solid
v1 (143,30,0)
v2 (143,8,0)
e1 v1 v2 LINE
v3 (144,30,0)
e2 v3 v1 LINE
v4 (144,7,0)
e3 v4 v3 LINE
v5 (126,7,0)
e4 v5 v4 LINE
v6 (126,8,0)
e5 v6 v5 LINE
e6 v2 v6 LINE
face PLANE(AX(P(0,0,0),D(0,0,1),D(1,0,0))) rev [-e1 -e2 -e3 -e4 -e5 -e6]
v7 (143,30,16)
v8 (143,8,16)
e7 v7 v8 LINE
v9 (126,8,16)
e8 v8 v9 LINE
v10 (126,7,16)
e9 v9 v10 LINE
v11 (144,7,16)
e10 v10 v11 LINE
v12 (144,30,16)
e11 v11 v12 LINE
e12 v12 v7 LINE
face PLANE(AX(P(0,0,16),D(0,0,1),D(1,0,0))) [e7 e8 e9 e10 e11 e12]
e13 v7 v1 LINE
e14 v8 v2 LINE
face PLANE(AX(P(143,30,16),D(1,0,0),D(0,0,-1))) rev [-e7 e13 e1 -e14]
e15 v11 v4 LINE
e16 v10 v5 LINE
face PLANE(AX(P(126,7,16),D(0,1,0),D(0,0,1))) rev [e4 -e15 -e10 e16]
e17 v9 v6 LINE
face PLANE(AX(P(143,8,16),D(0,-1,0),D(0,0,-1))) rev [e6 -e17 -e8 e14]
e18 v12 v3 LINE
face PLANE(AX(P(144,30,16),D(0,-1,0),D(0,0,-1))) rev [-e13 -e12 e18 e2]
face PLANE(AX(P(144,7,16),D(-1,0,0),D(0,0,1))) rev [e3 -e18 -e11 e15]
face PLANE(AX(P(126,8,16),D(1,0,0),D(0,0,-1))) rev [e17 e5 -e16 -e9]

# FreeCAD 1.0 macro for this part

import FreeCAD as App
import Part
import Sketcher
from FreeCAD import Vector

doc = App.newDocument("Part")
body = doc.addObject("PartDesign::Body", "Body")

sketch1 = body.newObject("Sketcher::SketchObject", "Sketch")
sketch1.AttachmentSupport = (doc.getObject("XY_Plane"), [""])
sketch1.MapMode = "FlatFace"
sketch1.addGeometry([
    Part.LineSegment(Vector(126, 7, 0), Vector(144, 7, 0)),
    Part.LineSegment(Vector(144, 7, 0), Vector(144, 30, 0)),
    Part.LineSegment(Vector(144, 30, 0), Vector(143, 30, 0)),
    Part.LineSegment(Vector(143, 30, 0), Vector(143, 8, 0)),
    Part.LineSegment(Vector(143, 8, 0), Vector(126, 8, 0)),
    Part.LineSegment(Vector(126, 8, 0), Vector(126, 7, 0)),
], False)
sketch1.addConstraint([
    Sketcher.Constraint("Coincident", 0, 2, 1, 1),
    Sketcher.Constraint("Coincident", 1, 2, 2, 1),
    Sketcher.Constraint("Coincident", 2, 2, 3, 1),
    Sketcher.Constraint("Coincident", 3, 2, 4, 1),
    Sketcher.Constraint("Coincident", 4, 2, 5, 1),
    Sketcher.Constraint("Coincident", 5, 2, 0, 1),
    Sketcher.Constraint("Horizontal", 0),
    Sketcher.Constraint("Vertical", 1),
    Sketcher.Constraint("Horizontal", 2),
    Sketcher.Constraint("Vertical", 3),
    Sketcher.Constraint("Horizontal", 4),
    Sketcher.Constraint("Vertical", 5),
    Sketcher.Constraint("Equal", 2, 5),
    Sketcher.Constraint("DistanceX", 0, 1, 0, 2, 18.0),
    Sketcher.Constraint("DistanceX", 2, 2, 2, 1, 1.0),
    Sketcher.Constraint("DistanceY", 1, 1, 1, 2, 23.0),
    Sketcher.Constraint("DistanceX", -1, 1, 0, 2, 144.0),
    Sketcher.Constraint("DistanceY", -1, 1, 0, 2, 7.0),
])
pad1 = body.newObject("PartDesign::Pad", "Pad")
pad1.Profile = sketch1
pad1.Length = 16

doc.recompute()
